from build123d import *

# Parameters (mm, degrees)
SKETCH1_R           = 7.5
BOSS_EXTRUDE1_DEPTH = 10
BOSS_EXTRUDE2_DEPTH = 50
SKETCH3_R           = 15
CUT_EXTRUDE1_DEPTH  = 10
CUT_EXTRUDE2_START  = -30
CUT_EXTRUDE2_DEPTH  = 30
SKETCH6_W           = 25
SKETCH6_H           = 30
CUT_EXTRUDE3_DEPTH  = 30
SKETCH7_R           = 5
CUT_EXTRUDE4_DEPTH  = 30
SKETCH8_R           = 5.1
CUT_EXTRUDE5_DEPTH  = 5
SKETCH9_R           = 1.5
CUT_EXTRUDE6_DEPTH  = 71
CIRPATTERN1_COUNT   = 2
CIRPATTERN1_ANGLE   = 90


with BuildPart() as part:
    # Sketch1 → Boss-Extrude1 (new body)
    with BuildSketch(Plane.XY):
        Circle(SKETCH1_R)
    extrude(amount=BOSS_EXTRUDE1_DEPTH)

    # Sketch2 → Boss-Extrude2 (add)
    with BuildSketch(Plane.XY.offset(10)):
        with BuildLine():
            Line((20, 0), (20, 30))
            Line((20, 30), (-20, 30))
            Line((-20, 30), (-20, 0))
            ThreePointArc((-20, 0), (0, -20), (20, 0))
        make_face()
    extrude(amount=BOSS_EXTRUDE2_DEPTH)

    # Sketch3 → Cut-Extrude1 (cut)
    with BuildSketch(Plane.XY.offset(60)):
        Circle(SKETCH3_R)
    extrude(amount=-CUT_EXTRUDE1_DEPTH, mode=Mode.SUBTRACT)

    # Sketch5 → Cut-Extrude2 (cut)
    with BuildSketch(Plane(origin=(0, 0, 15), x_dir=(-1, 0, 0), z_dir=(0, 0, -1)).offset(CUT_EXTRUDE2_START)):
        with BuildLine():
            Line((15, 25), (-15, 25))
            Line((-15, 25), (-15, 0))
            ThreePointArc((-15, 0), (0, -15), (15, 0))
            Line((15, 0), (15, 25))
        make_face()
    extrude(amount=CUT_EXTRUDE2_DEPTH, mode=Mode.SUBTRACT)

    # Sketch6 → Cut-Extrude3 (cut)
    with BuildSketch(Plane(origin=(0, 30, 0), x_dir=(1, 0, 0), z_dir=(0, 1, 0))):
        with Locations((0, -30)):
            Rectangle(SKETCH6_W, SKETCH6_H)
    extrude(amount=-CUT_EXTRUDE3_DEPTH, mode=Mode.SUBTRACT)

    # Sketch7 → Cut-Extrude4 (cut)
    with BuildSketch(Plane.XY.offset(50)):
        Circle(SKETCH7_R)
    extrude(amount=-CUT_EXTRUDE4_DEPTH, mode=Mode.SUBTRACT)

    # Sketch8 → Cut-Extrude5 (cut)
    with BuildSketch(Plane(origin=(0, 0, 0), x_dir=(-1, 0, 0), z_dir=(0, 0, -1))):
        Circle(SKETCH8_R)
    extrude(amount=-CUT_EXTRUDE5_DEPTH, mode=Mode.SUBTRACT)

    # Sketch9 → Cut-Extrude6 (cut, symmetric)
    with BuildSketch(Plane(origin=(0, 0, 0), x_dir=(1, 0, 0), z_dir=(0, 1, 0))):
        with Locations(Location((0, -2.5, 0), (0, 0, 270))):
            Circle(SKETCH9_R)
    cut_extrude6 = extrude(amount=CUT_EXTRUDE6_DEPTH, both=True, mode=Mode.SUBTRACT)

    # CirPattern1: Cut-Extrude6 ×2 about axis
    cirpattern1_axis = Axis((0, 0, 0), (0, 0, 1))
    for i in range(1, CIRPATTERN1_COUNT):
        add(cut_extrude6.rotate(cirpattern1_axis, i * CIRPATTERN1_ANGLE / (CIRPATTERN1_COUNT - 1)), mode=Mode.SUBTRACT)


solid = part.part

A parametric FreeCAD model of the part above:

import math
import FreeCAD as App
import Part
import Sketcher
Q = App.Units.Quantity


def add_polygon(sketch, points):
    """Adds a closed chain of lines whose ends are joined by coincident constraints."""
    first, n = sketch.GeometryCount, len(points)
    for a, b in zip(points, points[1:] + points[:1]):
        sketch.addGeometry(Part.LineSegment(App.Vector(*a, 0), App.Vector(*b, 0)), False)
    for i in range(n):
        sketch.addConstraint(Sketcher.Constraint("Coincident", first + i, 2, first + (i + 1) % n, 1))

doc = App.newDocument("Part")
body = doc.addObject("PartDesign::Body", "Body")

sketch1 = body.newObject("Sketcher::SketchObject", "Sketch")
sketch1.AttachmentSupport = (doc.getObject("XY_Plane"), [""])
sketch1.MapMode = "FlatFace"
sketch1.addGeometry(Part.Circle(App.Vector(0, 0, 0), App.Vector(0, 0, 1), 7.5), False)
sketch1.addConstraint(Sketcher.Constraint("Coincident", 0, 3, -1, 1))
sketch1.addConstraint(Sketcher.Constraint("Diameter", 0, Q("15 mm")))
pad1 = body.newObject("PartDesign::Pad", "Pad")
pad1.Profile = sketch1
pad1.Length = 10

sketch2 = body.newObject("Sketcher::SketchObject", "Sketch001")
sketch2.AttachmentSupport = (doc.getObject("XY_Plane"), [""])
sketch2.MapMode = "FlatFace"
sketch2.AttachmentOffset = App.Placement(App.Vector(0, 0, 10), App.Rotation())
sketch2.addGeometry(Part.LineSegment(App.Vector(20, 0, 0), App.Vector(20, 30, 0)), False)
sketch2.addGeometry(Part.LineSegment(App.Vector(20, 30, 0), App.Vector(-20, 30, 0)), False)
sketch2.addGeometry(Part.LineSegment(App.Vector(-20, 30, 0), App.Vector(-20, 0, 0)), False)
sketch2.addGeometry(Part.ArcOfCircle(Part.Circle(App.Vector(0, 0, 0), App.Vector(0, 0, 1), 20), math.radians(180), math.radians(360)), False)
sketch2.addConstraint(Sketcher.Constraint("Coincident", 0, 2, 1, 1))
sketch2.addConstraint(Sketcher.Constraint("Coincident", 1, 2, 2, 1))
sketch2.addConstraint(Sketcher.Constraint("Tangent", 2, 2, 3, 1))
sketch2.addConstraint(Sketcher.Constraint("Tangent", 3, 2, 0, 1))
sketch2.addConstraint(Sketcher.Constraint("Vertical", 0))
sketch2.addConstraint(Sketcher.Constraint("Horizontal", 1))
sketch2.addConstraint(Sketcher.Constraint("Vertical", 2))
sketch2.addConstraint(Sketcher.Constraint("Coincident", 3, 3, -1, 1))
sketch2.addConstraint(Sketcher.Constraint("Radius", 3, Q("20 mm")))
sketch2.addConstraint(Sketcher.Constraint("DistanceY", 0, 1, 0, 2, Q("30 mm")))
pad2 = body.newObject("PartDesign::Pad", "Pad001")
pad2.Profile = sketch2
pad2.Length = 50

sketch3 = body.newObject("Sketcher::SketchObject", "Sketch002")
sketch3.AttachmentSupport = (doc.getObject("XY_Plane"), [""])
sketch3.MapMode = "FlatFace"
sketch3.AttachmentOffset = App.Placement(App.Vector(0, 0, 60), App.Rotation())
sketch3.addGeometry(Part.Circle(App.Vector(0, 0, 0), App.Vector(0, 0, 1), 15), False)
sketch3.addConstraint(Sketcher.Constraint("Coincident", 0, 3, -1, 1))
sketch3.addConstraint(Sketcher.Constraint("Diameter", 0, Q("30 mm")))
pocket1 = body.newObject("PartDesign::Pocket", "Pocket")
pocket1.Profile = sketch3
pocket1.Length = 10

sketch4 = body.newObject("Sketcher::SketchObject", "Sketch003")
sketch4.AttachmentSupport = (doc.getObject("XY_Plane"), [""])
sketch4.MapMode = "FlatFace"
sketch4.AttachmentOffset = App.Placement(App.Vector(0, 0, 45), App.Rotation())
sketch4.addGeometry(Part.LineSegment(App.Vector(-15, 25, 0), App.Vector(15, 25, 0)), False)
sketch4.addGeometry(Part.LineSegment(App.Vector(15, 25, 0), App.Vector(15, 0, 0)), False)
sketch4.addGeometry(Part.ArcOfCircle(Part.Circle(App.Vector(0, 0, 0), App.Vector(0, 0, 1), 15), math.radians(180), math.radians(360)), False)
sketch4.addGeometry(Part.LineSegment(App.Vector(-15, 0, 0), App.Vector(-15, 25, 0)), False)
sketch4.addConstraint(Sketcher.Constraint("Coincident", 0, 2, 1, 1))
sketch4.addConstraint(Sketcher.Constraint("Tangent", 1, 2, 2, 2))
sketch4.addConstraint(Sketcher.Constraint("Tangent", 2, 1, 3, 1))
sketch4.addConstraint(Sketcher.Constraint("Coincident", 3, 2, 0, 1))
sketch4.addConstraint(Sketcher.Constraint("Horizontal", 0))
sketch4.addConstraint(Sketcher.Constraint("Vertical", 1))
sketch4.addConstraint(Sketcher.Constraint("Vertical", 3))
sketch4.addConstraint(Sketcher.Constraint("Coincident", 2, 3, -1, 1))
sketch4.addConstraint(Sketcher.Constraint("Radius", 2, Q("15 mm")))
sketch4.addConstraint(Sketcher.Constraint("DistanceY", 1, 2, 1, 1, Q("25 mm")))
pocket2 = body.newObject("PartDesign::Pocket", "Pocket001")
pocket2.Profile = sketch4
pocket2.Length = 30

sketch5 = body.newObject("Sketcher::SketchObject", "Sketch004")
sketch5.AttachmentSupport = (doc.getObject("XZ_Plane"), [""])
sketch5.MapMode = "FlatFace"
sketch5.AttachmentOffset = App.Placement(App.Vector(0, 0, -30), App.Rotation())
add_polygon(sketch5, [(-12.5, 15), (-12.5, 45), (12.5, 45), (12.5, 15)])
sketch5.addConstraint(Sketcher.Constraint("Vertical", 0))
sketch5.addConstraint(Sketcher.Constraint("Horizontal", 1))
sketch5.addConstraint(Sketcher.Constraint("Vertical", 2))
sketch5.addConstraint(Sketcher.Constraint("Horizontal", 3))
sketch5.addConstraint(Sketcher.Constraint("DistanceX", 1, 1, 1, 2, Q("25 mm")))
sketch5.addConstraint(Sketcher.Constraint("DistanceY", 0, 1, 0, 2, Q("30 mm")))
sketch5.addConstraint(Sketcher.Constraint("DistanceY", -1, 1, 0, 2, Q("45 mm")))
sketch5.addConstraint(Sketcher.Constraint("DistanceX", 0, 2, -1, 1, Q("12.5 mm")))
pocket3 = body.newObject("PartDesign::Pocket", "Pocket002")
pocket3.Profile = sketch5
pocket3.Length = 30
pocket3.Reversed = True

sketch6 = body.newObject("Sketcher::SketchObject", "Sketch005")
sketch6.AttachmentSupport = (doc.getObject("XY_Plane"), [""])
sketch6.MapMode = "FlatFace"
sketch6.AttachmentOffset = App.Placement(App.Vector(0, 0, 50), App.Rotation())
sketch6.addGeometry(Part.Circle(App.Vector(0, 0, 0), App.Vector(0, 0, 1), 5), False)
sketch6.addConstraint(Sketcher.Constraint("Coincident", 0, 3, -1, 1))
sketch6.addConstraint(Sketcher.Constraint("Diameter", 0, Q("10 mm")))
pocket4 = body.newObject("PartDesign::Pocket", "Pocket003")
pocket4.Profile = sketch6
pocket4.Length = 30

sketch7 = body.newObject("Sketcher::SketchObject", "Sketch006")
sketch7.AttachmentSupport = (doc.getObject("XY_Plane"), [""])
sketch7.MapMode = "FlatFace"
sketch7.addGeometry(Part.Circle(App.Vector(0, 0, 0), App.Vector(0, 0, 1), 5.1), False)
sketch7.addConstraint(Sketcher.Constraint("Coincident", 0, 3, -1, 1))
sketch7.addConstraint(Sketcher.Constraint("Diameter", 0, Q("10.2 mm")))
pocket5 = body.newObject("PartDesign::Pocket", "Pocket004")
pocket5.Profile = sketch7
pocket5.Length = 5
pocket5.Reversed = True

sketch8 = body.newObject("Sketcher::SketchObject", "Sketch007")
sketch8.AttachmentSupport = (doc.getObject("XZ_Plane"), [""])
sketch8.MapMode = "FlatFace"
sketch8.addGeometry(Part.Circle(App.Vector(0, 2.5, 0), App.Vector(0, 0, 1), 1.5), False)
sketch8.addConstraint(Sketcher.Constraint("PointOnObject", 0, 3, -2))
sketch8.addConstraint(Sketcher.Constraint("Diameter", 0, Q("3 mm")))
sketch8.addConstraint(Sketcher.Constraint("DistanceY", -1, 1, 0, 3, Q("2.5 mm")))
pocket6 = body.newObject("PartDesign::Pocket", "Pocket005")
pocket6.Profile = sketch8
pocket6.Length = 142
pocket6.Midplane = True
doc.recompute()

polarpattern = body.newObject("PartDesign::PolarPattern", "PolarPattern")
polarpattern.Originals = [pocket6]
polarpattern.Axis = (doc.getObject("Z_Axis"), [""])
polarpattern.Angle = 90
polarpattern.Occurrences = 2
body.Tip = polarpattern

doc.recompute()
